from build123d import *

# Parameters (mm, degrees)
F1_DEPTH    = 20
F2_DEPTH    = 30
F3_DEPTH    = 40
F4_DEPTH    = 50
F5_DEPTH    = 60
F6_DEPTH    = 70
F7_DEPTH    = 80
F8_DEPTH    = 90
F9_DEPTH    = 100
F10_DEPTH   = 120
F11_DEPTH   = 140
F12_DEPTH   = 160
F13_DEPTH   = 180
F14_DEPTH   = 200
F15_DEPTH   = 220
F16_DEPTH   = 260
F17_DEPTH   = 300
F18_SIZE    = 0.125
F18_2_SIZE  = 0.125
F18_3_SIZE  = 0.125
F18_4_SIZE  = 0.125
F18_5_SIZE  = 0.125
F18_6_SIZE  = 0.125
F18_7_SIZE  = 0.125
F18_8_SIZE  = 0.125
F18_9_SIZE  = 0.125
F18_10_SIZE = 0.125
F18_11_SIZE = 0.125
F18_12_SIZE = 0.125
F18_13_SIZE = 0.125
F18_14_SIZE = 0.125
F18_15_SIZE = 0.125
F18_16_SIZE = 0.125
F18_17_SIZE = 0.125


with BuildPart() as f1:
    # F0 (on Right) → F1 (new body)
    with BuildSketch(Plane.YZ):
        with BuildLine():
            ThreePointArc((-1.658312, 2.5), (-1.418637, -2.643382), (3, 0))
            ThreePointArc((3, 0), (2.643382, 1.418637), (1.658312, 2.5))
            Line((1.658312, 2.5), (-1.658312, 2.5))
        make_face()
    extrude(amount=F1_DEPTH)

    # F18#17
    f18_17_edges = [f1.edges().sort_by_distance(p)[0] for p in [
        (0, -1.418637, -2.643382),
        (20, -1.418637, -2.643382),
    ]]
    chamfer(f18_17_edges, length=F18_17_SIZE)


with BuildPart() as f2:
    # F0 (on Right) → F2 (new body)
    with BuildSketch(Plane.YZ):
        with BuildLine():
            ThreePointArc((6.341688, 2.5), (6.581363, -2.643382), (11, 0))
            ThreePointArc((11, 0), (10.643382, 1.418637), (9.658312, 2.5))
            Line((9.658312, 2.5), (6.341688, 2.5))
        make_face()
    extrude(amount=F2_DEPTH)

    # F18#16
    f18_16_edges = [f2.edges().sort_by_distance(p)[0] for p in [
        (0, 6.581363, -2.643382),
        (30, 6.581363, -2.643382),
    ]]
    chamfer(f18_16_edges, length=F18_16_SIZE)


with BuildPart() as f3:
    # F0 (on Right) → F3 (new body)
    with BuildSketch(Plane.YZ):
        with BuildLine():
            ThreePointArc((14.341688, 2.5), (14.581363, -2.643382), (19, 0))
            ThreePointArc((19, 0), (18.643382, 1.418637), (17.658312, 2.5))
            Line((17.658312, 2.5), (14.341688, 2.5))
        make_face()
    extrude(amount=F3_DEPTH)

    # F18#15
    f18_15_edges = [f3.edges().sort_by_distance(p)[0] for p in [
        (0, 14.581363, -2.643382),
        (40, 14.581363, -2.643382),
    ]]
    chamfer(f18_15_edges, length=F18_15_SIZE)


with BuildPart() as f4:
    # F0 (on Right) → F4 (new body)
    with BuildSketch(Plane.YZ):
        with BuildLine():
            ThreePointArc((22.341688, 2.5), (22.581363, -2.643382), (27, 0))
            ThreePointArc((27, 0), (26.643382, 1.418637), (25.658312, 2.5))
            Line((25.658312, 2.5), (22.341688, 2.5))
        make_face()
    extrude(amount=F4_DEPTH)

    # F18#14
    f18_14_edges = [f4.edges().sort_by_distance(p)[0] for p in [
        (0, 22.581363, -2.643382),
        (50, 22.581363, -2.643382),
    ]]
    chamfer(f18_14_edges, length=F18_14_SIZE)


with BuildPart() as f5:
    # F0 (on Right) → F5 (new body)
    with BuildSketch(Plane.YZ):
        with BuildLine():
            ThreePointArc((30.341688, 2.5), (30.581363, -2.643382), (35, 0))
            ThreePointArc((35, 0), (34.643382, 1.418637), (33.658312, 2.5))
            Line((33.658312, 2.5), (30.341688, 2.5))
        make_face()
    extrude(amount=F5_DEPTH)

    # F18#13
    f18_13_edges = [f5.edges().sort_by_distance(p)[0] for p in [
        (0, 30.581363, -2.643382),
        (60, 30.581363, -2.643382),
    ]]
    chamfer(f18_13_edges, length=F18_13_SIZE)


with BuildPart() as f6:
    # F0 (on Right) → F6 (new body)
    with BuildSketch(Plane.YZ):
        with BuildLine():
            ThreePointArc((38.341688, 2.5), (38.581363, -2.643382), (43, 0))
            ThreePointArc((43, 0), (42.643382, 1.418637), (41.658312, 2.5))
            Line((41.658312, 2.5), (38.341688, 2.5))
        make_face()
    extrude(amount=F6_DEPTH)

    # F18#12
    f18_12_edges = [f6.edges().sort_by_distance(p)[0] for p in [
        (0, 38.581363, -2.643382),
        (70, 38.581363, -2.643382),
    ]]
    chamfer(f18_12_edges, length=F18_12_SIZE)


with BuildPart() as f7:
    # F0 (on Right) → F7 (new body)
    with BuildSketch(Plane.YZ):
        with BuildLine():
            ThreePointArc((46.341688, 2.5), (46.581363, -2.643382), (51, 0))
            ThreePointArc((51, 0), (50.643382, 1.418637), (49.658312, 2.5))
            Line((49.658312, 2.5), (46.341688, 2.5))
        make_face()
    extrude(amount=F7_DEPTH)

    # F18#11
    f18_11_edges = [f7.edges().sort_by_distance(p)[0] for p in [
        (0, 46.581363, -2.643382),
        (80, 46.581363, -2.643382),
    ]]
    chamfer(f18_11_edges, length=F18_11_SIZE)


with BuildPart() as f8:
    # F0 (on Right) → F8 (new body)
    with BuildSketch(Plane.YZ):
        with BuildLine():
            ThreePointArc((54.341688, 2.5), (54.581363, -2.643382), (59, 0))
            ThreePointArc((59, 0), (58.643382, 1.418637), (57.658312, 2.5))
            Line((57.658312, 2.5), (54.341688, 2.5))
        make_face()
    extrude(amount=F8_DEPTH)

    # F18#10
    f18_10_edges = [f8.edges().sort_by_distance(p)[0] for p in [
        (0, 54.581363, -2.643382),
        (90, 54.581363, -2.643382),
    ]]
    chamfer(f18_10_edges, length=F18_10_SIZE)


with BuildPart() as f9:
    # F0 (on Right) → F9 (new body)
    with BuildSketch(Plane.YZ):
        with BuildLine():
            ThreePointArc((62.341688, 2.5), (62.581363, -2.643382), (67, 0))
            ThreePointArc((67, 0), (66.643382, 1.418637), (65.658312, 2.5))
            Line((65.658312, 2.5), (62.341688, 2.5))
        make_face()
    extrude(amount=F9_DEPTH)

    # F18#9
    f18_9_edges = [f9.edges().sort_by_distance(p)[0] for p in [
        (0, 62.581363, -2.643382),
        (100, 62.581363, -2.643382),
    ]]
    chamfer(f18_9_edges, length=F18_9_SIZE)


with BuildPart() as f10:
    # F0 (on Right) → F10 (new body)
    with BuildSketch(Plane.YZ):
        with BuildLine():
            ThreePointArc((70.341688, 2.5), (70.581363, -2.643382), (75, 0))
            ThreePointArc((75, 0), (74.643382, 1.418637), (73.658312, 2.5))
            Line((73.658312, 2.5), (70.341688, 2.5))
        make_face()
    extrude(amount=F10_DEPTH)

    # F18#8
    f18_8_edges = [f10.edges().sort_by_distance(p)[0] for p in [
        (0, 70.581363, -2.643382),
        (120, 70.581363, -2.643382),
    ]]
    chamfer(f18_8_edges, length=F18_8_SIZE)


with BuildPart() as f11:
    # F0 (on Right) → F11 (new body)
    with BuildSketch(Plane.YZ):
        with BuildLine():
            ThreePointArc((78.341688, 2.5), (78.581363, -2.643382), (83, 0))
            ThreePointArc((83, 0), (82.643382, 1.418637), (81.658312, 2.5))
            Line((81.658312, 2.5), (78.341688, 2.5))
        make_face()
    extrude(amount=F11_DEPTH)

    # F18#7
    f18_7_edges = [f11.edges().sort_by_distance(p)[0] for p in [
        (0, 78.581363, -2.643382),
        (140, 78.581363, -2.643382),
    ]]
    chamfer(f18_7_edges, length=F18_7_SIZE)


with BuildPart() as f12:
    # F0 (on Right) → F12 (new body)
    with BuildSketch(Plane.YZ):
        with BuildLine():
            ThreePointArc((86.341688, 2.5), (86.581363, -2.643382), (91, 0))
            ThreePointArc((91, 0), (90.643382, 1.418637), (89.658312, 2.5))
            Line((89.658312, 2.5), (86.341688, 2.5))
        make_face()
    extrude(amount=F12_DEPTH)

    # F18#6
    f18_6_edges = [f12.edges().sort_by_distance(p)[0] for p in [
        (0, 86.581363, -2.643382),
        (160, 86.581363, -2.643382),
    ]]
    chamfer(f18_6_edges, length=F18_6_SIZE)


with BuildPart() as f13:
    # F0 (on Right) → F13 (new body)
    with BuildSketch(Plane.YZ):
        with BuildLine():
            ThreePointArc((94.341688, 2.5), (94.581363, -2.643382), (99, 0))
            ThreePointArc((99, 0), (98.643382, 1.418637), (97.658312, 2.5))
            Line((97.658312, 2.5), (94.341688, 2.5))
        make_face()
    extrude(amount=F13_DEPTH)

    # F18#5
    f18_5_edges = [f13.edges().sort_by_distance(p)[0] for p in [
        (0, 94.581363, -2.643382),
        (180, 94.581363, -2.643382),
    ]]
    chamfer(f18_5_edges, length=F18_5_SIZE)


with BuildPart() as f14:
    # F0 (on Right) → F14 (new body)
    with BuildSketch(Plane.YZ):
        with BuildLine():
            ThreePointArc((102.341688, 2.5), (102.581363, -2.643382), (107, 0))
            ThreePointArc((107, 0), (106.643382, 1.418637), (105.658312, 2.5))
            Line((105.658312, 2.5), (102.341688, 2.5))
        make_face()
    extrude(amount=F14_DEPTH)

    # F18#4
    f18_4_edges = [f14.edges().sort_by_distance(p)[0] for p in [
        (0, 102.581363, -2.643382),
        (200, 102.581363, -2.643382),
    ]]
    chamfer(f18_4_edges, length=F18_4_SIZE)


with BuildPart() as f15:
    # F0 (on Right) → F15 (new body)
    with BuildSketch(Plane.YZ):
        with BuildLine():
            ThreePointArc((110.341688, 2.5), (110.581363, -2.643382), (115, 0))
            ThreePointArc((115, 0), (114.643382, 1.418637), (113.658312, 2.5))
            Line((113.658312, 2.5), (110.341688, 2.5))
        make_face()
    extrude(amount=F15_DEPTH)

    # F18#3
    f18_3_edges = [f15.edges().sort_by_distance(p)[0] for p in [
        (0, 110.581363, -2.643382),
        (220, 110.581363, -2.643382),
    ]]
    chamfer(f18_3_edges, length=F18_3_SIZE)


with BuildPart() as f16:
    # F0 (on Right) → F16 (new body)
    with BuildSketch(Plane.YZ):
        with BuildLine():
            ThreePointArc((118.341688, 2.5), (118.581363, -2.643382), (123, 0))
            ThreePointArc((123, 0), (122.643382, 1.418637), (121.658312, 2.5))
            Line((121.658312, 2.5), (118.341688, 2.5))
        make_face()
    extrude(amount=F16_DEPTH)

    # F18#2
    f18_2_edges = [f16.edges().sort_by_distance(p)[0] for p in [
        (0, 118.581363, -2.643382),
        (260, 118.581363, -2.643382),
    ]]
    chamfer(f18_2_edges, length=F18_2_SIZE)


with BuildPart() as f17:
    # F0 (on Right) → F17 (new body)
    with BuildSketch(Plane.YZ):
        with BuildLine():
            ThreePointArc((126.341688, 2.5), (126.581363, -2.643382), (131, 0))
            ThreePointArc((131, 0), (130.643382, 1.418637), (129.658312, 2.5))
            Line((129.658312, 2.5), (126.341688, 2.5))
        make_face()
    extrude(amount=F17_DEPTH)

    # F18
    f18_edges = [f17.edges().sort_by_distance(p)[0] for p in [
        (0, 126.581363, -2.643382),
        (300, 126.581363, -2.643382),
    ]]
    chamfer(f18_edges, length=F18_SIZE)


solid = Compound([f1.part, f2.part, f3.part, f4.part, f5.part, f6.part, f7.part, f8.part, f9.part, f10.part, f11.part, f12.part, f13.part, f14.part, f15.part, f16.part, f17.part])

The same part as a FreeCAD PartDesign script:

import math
import FreeCAD as App
import Part
import Sketcher


def edges_at(feature, points):
    """Names of the edges that pass closest to the given points."""
    edges = feature.Shape.Edges
    near = lambda p: min(range(len(edges)), key=lambda i: edges[i].distToShape(Part.Vertex(*p))[0])
    return sorted({f"Edge{near(p) + 1}" for p in points})

doc = App.newDocument("Part")
body = doc.addObject("PartDesign::Body", "Body")

# Sketch on YZ plane
sketch1 = body.newObject("Sketcher::SketchObject", "Sketch")
sketch1.AttachmentSupport = (doc.getObject("YZ_Plane"), [""])
sketch1.MapMode = "FlatFace"
sketch1.addGeometry([
    Part.ArcOfCircle(Part.Circle(App.Vector(0, 0, 0), App.Vector(0, 0, 1), 3), math.radians(124), math.radians(360)),
    Part.ArcOfCircle(Part.Circle(App.Vector(0, 0, 0), App.Vector(0, 0, 1), 3), math.radians(0), math.radians(56)),
    Part.LineSegment(App.Vector(1.7, 2.5, 0), App.Vector(-1.7, 2.5, 0)),
], False)
sketch1.addConstraint([
    Sketcher.Constraint("Tangent", 0, 2, 1, 1),
    Sketcher.Constraint("Coincident", 1, 2, 2, 1),
    Sketcher.Constraint("Coincident", 2, 2, 0, 1),
    Sketcher.Constraint("Horizontal", 2),
    Sketcher.Constraint("Coincident", 0, 3, -1, 1),
    Sketcher.Constraint("Equal", 0, 1),
    Sketcher.Constraint("PointOnObject", 0, 2, -1),
    Sketcher.Constraint("Radius", 0, 3.0),
    Sketcher.Constraint("DistanceY", -1, 1, 1, 2, 2.5),
])
pad1 = body.newObject("PartDesign::Pad", "Pad")
pad1.Profile = sketch1
pad1.Length = 20
doc.recompute()

chamfer = body.newObject("PartDesign::Chamfer", "Chamfer")
chamfer.Base = (pad1, edges_at(pad1, [(0, -1.419, -2.643), (20, -1.419, -2.643)]))
chamfer.Size = 0.125
body2 = doc.addObject("PartDesign::Body", "Body001")

# Sketch on YZ plane
sketch2 = body2.newObject("Sketcher::SketchObject", "Sketch001")
sketch2.AttachmentSupport = (doc.getObject("YZ_Plane001"), [""])
sketch2.MapMode = "FlatFace"
sketch2.addGeometry([
    Part.ArcOfCircle(Part.Circle(App.Vector(8, 0, 0), App.Vector(0, 0, 1), 3), math.radians(124), math.radians(360)),
    Part.ArcOfCircle(Part.Circle(App.Vector(8, 0, 0), App.Vector(0, 0, 1), 3), math.radians(0), math.radians(56)),
    Part.LineSegment(App.Vector(9.7, 2.5, 0), App.Vector(6.3, 2.5, 0)),
], False)
sketch2.addConstraint([
    Sketcher.Constraint("Tangent", 0, 2, 1, 1),
    Sketcher.Constraint("Coincident", 1, 2, 2, 1),
    Sketcher.Constraint("Coincident", 2, 2, 0, 1),
    Sketcher.Constraint("Horizontal", 2),
    Sketcher.Constraint("Equal", 0, 1),
    Sketcher.Constraint("PointOnObject", 0, 3, -1),
    Sketcher.Constraint("PointOnObject", 0, 2, -1),
    Sketcher.Constraint("Radius", 0, 3.0),
    Sketcher.Constraint("DistanceX", -1, 1, 0, 3, 8.0),
    Sketcher.Constraint("DistanceY", -1, 1, 1, 2, 2.5),
])
pad2 = body2.newObject("PartDesign::Pad", "Pad001")
pad2.Profile = sketch2
pad2.Length = 30
doc.recompute()

chamfer2 = body2.newObject("PartDesign::Chamfer", "Chamfer001")
chamfer2.Base = (pad2, edges_at(pad2, [(0, 6.581, -2.643), (30, 6.581, -2.643)]))
chamfer2.Size = 0.125
body3 = doc.addObject("PartDesign::Body", "Body002")

# Sketch on YZ plane
sketch3 = body3.newObject("Sketcher::SketchObject", "Sketch002")
sketch3.AttachmentSupport = (doc.getObject("YZ_Plane002"), [""])
sketch3.MapMode = "FlatFace"
sketch3.addGeometry([
    Part.ArcOfCircle(Part.Circle(App.Vector(16, 0, 0), App.Vector(0, 0, 1), 3), math.radians(124), math.radians(360)),
    Part.ArcOfCircle(Part.Circle(App.Vector(16, 0, 0), App.Vector(0, 0, 1), 3), math.radians(0), math.radians(56)),
    Part.LineSegment(App.Vector(17.7, 2.5, 0), App.Vector(14.3, 2.5, 0)),
], False)
sketch3.addConstraint([
    Sketcher.Constraint("Tangent", 0, 2, 1, 1),
    Sketcher.Constraint("Coincident", 1, 2, 2, 1),
    Sketcher.Constraint("Coincident", 2, 2, 0, 1),
    Sketcher.Constraint("Horizontal", 2),
    Sketcher.Constraint("Equal", 0, 1),
    Sketcher.Constraint("PointOnObject", 0, 3, -1),
    Sketcher.Constraint("PointOnObject", 0, 2, -1),
    Sketcher.Constraint("Radius", 0, 3.0),
    Sketcher.Constraint("DistanceX", -1, 1, 0, 3, 16.0),
    Sketcher.Constraint("DistanceY", -1, 1, 1, 2, 2.5),
])
pad3 = body3.newObject("PartDesign::Pad", "Pad002")
pad3.Profile = sketch3
pad3.Length = 40
doc.recompute()

chamfer3 = body3.newObject("PartDesign::Chamfer", "Chamfer002")
chamfer3.Base = (pad3, edges_at(pad3, [(0, 14.581, -2.643), (40, 14.581, -2.643)]))
chamfer3.Size = 0.125
body4 = doc.addObject("PartDesign::Body", "Body003")

# Sketch on YZ plane
sketch4 = body4.newObject("Sketcher::SketchObject", "Sketch003")
sketch4.AttachmentSupport = (doc.getObject("YZ_Plane003"), [""])
sketch4.MapMode = "FlatFace"
sketch4.addGeometry([
    Part.ArcOfCircle(Part.Circle(App.Vector(24, 0, 0), App.Vector(0, 0, 1), 3), math.radians(124), math.radians(360)),
    Part.ArcOfCircle(Part.Circle(App.Vector(24, 0, 0), App.Vector(0, 0, 1), 3), math.radians(0), math.radians(56)),
    Part.LineSegment(App.Vector(25.7, 2.5, 0), App.Vector(22.3, 2.5, 0)),
], False)
sketch4.addConstraint([
    Sketcher.Constraint("Tangent", 0, 2, 1, 1),
    Sketcher.Constraint("Coincident", 1, 2, 2, 1),
    Sketcher.Constraint("Coincident", 2, 2, 0, 1),
    Sketcher.Constraint("Horizontal", 2),
    Sketcher.Constraint("Equal", 0, 1),
    Sketcher.Constraint("PointOnObject", 0, 3, -1),
    Sketcher.Constraint("PointOnObject", 0, 2, -1),
    Sketcher.Constraint("Radius", 0, 3.0),
    Sketcher.Constraint("DistanceX", -1, 1, 0, 3, 24.0),
    Sketcher.Constraint("DistanceY", -1, 1, 1, 2, 2.5),
])
pad4 = body4.newObject("PartDesign::Pad", "Pad003")
pad4.Profile = sketch4
pad4.Length = 50
doc.recompute()

chamfer4 = body4.newObject("PartDesign::Chamfer", "Chamfer003")
chamfer4.Base = (pad4, edges_at(pad4, [(0, 22.581, -2.643), (50, 22.581, -2.643)]))
chamfer4.Size = 0.125
body5 = doc.addObject("PartDesign::Body", "Body004")

# Sketch on YZ plane
sketch5 = body5.newObject("Sketcher::SketchObject", "Sketch004")
sketch5.AttachmentSupport = (doc.getObject("YZ_Plane004"), [""])
sketch5.MapMode = "FlatFace"
sketch5.addGeometry([
    Part.ArcOfCircle(Part.Circle(App.Vector(32, 0, 0), App.Vector(0, 0, 1), 3), math.radians(124), math.radians(360)),
    Part.ArcOfCircle(Part.Circle(App.Vector(32, 0, 0), App.Vector(0, 0, 1), 3), math.radians(0), math.radians(56)),
    Part.LineSegment(App.Vector(33.7, 2.5, 0), App.Vector(30.3, 2.5, 0)),
], False)
sketch5.addConstraint([
    Sketcher.Constraint("Tangent", 0, 2, 1, 1),
    Sketcher.Constraint("Coincident", 1, 2, 2, 1),
    Sketcher.Constraint("Coincident", 2, 2, 0, 1),
    Sketcher.Constraint("Horizontal", 2),
    Sketcher.Constraint("Equal", 0, 1),
    Sketcher.Constraint("PointOnObject", 0, 3, -1),
    Sketcher.Constraint("PointOnObject", 0, 2, -1),
    Sketcher.Constraint("Radius", 0, 3.0),
    Sketcher.Constraint("DistanceX", -1, 1, 0, 3, 32.0),
    Sketcher.Constraint("DistanceY", -1, 1, 1, 2, 2.5),
])
pad5 = body5.newObject("PartDesign::Pad", "Pad004")
pad5.Profile = sketch5
pad5.Length = 60
doc.recompute()

chamfer5 = body5.newObject("PartDesign::Chamfer", "Chamfer004")
chamfer5.Base = (pad5, edges_at(pad5, [(0, 30.581, -2.643), (60, 30.581, -2.643)]))
chamfer5.Size = 0.125
body6 = doc.addObject("PartDesign::Body", "Body005")

# Sketch on YZ plane
sketch6 = body6.newObject("Sketcher::SketchObject", "Sketch005")
sketch6.AttachmentSupport = (doc.getObject("YZ_Plane005"), [""])
sketch6.MapMode = "FlatFace"
sketch6.addGeometry([
    Part.ArcOfCircle(Part.Circle(App.Vector(40, 0, 0), App.Vector(0, 0, 1), 3), math.radians(124), math.radians(360)),
    Part.ArcOfCircle(Part.Circle(App.Vector(40, 0, 0), App.Vector(0, 0, 1), 3), math.radians(0), math.radians(56)),
    Part.LineSegment(App.Vector(41.7, 2.5, 0), App.Vector(38.3, 2.5, 0)),
], False)
sketch6.addConstraint([
    Sketcher.Constraint("Tangent", 0, 2, 1, 1),
    Sketcher.Constraint("Coincident", 1, 2, 2, 1),
    Sketcher.Constraint("Coincident", 2, 2, 0, 1),
    Sketcher.Constraint("Horizontal", 2),
    Sketcher.Constraint("Equal", 0, 1),
    Sketcher.Constraint("PointOnObject", 0, 3, -1),
    Sketcher.Constraint("PointOnObject", 0, 2, -1),
    Sketcher.Constraint("Radius", 0, 3.0),
    Sketcher.Constraint("DistanceX", -1, 1, 0, 3, 40.0),
    Sketcher.Constraint("DistanceY", -1, 1, 1, 2, 2.5),
])
pad6 = body6.newObject("PartDesign::Pad", "Pad005")
pad6.Profile = sketch6
pad6.Length = 70
doc.recompute()

chamfer6 = body6.newObject("PartDesign::Chamfer", "Chamfer005")
chamfer6.Base = (pad6, edges_at(pad6, [(0, 38.581, -2.643), (70, 38.581, -2.643)]))
chamfer6.Size = 0.125
body7 = doc.addObject("PartDesign::Body", "Body006")

# Sketch on YZ plane
sketch7 = body7.newObject("Sketcher::SketchObject", "Sketch006")
sketch7.AttachmentSupport = (doc.getObject("YZ_Plane006"), [""])
sketch7.MapMode = "FlatFace"
sketch7.addGeometry([
    Part.ArcOfCircle(Part.Circle(App.Vector(48, 0, 0), App.Vector(0, 0, 1), 3), math.radians(124), math.radians(360)),
    Part.ArcOfCircle(Part.Circle(App.Vector(48, 0, 0), App.Vector(0, 0, 1), 3), math.radians(0), math.radians(56)),
    Part.LineSegment(App.Vector(49.7, 2.5, 0), App.Vector(46.3, 2.5, 0)),
], False)
sketch7.addConstraint([
    Sketcher.Constraint("Tangent", 0, 2, 1, 1),
    Sketcher.Constraint("Coincident", 1, 2, 2, 1),
    Sketcher.Constraint("Coincident", 2, 2, 0, 1),
    Sketcher.Constraint("Horizontal", 2),
    Sketcher.Constraint("Equal", 0, 1),
    Sketcher.Constraint("PointOnObject", 0, 3, -1),
    Sketcher.Constraint("PointOnObject", 0, 2, -1),
    Sketcher.Constraint("Radius", 0, 3.0),
    Sketcher.Constraint("DistanceX", -1, 1, 0, 3, 48.0),
    Sketcher.Constraint("DistanceY", -1, 1, 1, 2, 2.5),
])
pad7 = body7.newObject("PartDesign::Pad", "Pad006")
pad7.Profile = sketch7
pad7.Length = 80
doc.recompute()

chamfer7 = body7.newObject("PartDesign::Chamfer", "Chamfer006")
chamfer7.Base = (pad7, edges_at(pad7, [(0, 46.581, -2.643), (80, 46.581, -2.643)]))
chamfer7.Size = 0.125
body8 = doc.addObject("PartDesign::Body", "Body007")

# Sketch on YZ plane
sketch8 = body8.newObject("Sketcher::SketchObject", "Sketch007")
sketch8.AttachmentSupport = (doc.getObject("YZ_Plane007"), [""])
sketch8.MapMode = "FlatFace"
sketch8.addGeometry([
    Part.ArcOfCircle(Part.Circle(App.Vector(56, 0, 0), App.Vector(0, 0, 1), 3), math.radians(124), math.radians(360)),
    Part.ArcOfCircle(Part.Circle(App.Vector(56, 0, 0), App.Vector(0, 0, 1), 3), math.radians(0), math.radians(56)),
    Part.LineSegment(App.Vector(57.7, 2.5, 0), App.Vector(54.3, 2.5, 0)),
], False)
sketch8.addConstraint([
    Sketcher.Constraint("Tangent", 0, 2, 1, 1),
    Sketcher.Constraint("Coincident", 1, 2, 2, 1),
    Sketcher.Constraint("Coincident", 2, 2, 0, 1),
    Sketcher.Constraint("Horizontal", 2),
    Sketcher.Constraint("Equal", 0, 1),
    Sketcher.Constraint("PointOnObject", 0, 3, -1),
    Sketcher.Constraint("PointOnObject", 0, 2, -1),
    Sketcher.Constraint("Radius", 0, 3.0),
    Sketcher.Constraint("DistanceX", -1, 1, 0, 3, 56.0),
    Sketcher.Constraint("DistanceY", -1, 1, 1, 2, 2.5),
])
pad8 = body8.newObject("PartDesign::Pad", "Pad007")
pad8.Profile = sketch8
pad8.Length = 90
doc.recompute()

chamfer8 = body8.newObject("PartDesign::Chamfer", "Chamfer007")
chamfer8.Base = (pad8, edges_at(pad8, [(0, 54.581, -2.643), (90, 54.581, -2.643)]))
chamfer8.Size = 0.125
body9 = doc.addObject("PartDesign::Body", "Body008")

# Sketch on YZ plane
sketch9 = body9.newObject("Sketcher::SketchObject", "Sketch008")
sketch9.AttachmentSupport = (doc.getObject("YZ_Plane008"), [""])
sketch9.MapMode = "FlatFace"
sketch9.addGeometry([
    Part.ArcOfCircle(Part.Circle(App.Vector(64, 0, 0), App.Vector(0, 0, 1), 3), math.radians(124), math.radians(360)),
    Part.ArcOfCircle(Part.Circle(App.Vector(64, 0, 0), App.Vector(0, 0, 1), 3), math.radians(0), math.radians(56)),
    Part.LineSegment(App.Vector(65.7, 2.5, 0), App.Vector(62.3, 2.5, 0)),
], False)
sketch9.addConstraint([
    Sketcher.Constraint("Tangent", 0, 2, 1, 1),
    Sketcher.Constraint("Coincident", 1, 2, 2, 1),
    Sketcher.Constraint("Coincident", 2, 2, 0, 1),
    Sketcher.Constraint("Horizontal", 2),
    Sketcher.Constraint("Equal", 0, 1),
    Sketcher.Constraint("PointOnObject", 0, 3, -1),
    Sketcher.Constraint("PointOnObject", 0, 2, -1),
    Sketcher.Constraint("Radius", 0, 3.0),
    Sketcher.Constraint("DistanceX", -1, 1, 0, 3, 64.0),
    Sketcher.Constraint("DistanceY", -1, 1, 1, 2, 2.5),
])
pad9 = body9.newObject("PartDesign::Pad", "Pad008")
pad9.Profile = sketch9
pad9.Length = 100
doc.recompute()

chamfer9 = body9.newObject("PartDesign::Chamfer", "Chamfer008")
chamfer9.Base = (pad9, edges_at(pad9, [(0, 62.581, -2.643), (100, 62.581, -2.643)]))
chamfer9.Size = 0.125
body10 = doc.addObject("PartDesign::Body", "Body009")

# Sketch on YZ plane
sketch10 = body10.newObject("Sketcher::SketchObject", "Sketch009")
sketch10.AttachmentSupport = (doc.getObject("YZ_Plane009"), [""])
sketch10.MapMode = "FlatFace"
sketch10.addGeometry([
    Part.ArcOfCircle(Part.Circle(App.Vector(72, 0, 0), App.Vector(0, 0, 1), 3), math.radians(124), math.radians(360)),
    Part.ArcOfCircle(Part.Circle(App.Vector(72, 0, 0), App.Vector(0, 0, 1), 3), math.radians(0), math.radians(56)),
    Part.LineSegment(App.Vector(73.7, 2.5, 0), App.Vector(70.3, 2.5, 0)),
], False)
sketch10.addConstraint([
    Sketcher.Constraint("Tangent", 0, 2, 1, 1),
    Sketcher.Constraint("Coincident", 1, 2, 2, 1),
    Sketcher.Constraint("Coincident", 2, 2, 0, 1),
    Sketcher.Constraint("Horizontal", 2),
    Sketcher.Constraint("Equal", 0, 1),
    Sketcher.Constraint("PointOnObject", 0, 3, -1),
    Sketcher.Constraint("PointOnObject", 0, 2, -1),
    Sketcher.Constraint("Radius", 0, 3.0),
    Sketcher.Constraint("DistanceX", -1, 1, 0, 3, 72.0),
    Sketcher.Constraint("DistanceY", -1, 1, 1, 2, 2.5),
])
pad10 = body10.newObject("PartDesign::Pad", "Pad009")
pad10.Profile = sketch10
pad10.Length = 120
doc.recompute()

chamfer10 = body10.newObject("PartDesign::Chamfer", "Chamfer009")
chamfer10.Base = (pad10, edges_at(pad10, [(0, 70.581, -2.643), (120, 70.581, -2.643)]))
chamfer10.Size = 0.125
body11 = doc.addObject("PartDesign::Body", "Body010")

# Sketch on YZ plane
sketch11 = body11.newObject("Sketcher::SketchObject", "Sketch010")
sketch11.AttachmentSupport = (doc.getObject("YZ_Plane010"), [""])
sketch11.MapMode = "FlatFace"
sketch11.addGeometry([
    Part.ArcOfCircle(Part.Circle(App.Vector(80, 0, 0), App.Vector(0, 0, 1), 3), math.radians(124), math.radians(360)),
    Part.ArcOfCircle(Part.Circle(App.Vector(80, 0, 0), App.Vector(0, 0, 1), 3), math.radians(0), math.radians(56)),
    Part.LineSegment(App.Vector(81.7, 2.5, 0), App.Vector(78.3, 2.5, 0)),
], False)
sketch11.addConstraint([
    Sketcher.Constraint("Tangent", 0, 2, 1, 1),
    Sketcher.Constraint("Coincident", 1, 2, 2, 1),
    Sketcher.Constraint("Coincident", 2, 2, 0, 1),
    Sketcher.Constraint("Horizontal", 2),
    Sketcher.Constraint("Equal", 0, 1),
    Sketcher.Constraint("PointOnObject", 0, 3, -1),
    Sketcher.Constraint("PointOnObject", 0, 2, -1),
    Sketcher.Constraint("Radius", 0, 3.0),
    Sketcher.Constraint("DistanceX", -1, 1, 0, 3, 80.0),
    Sketcher.Constraint("DistanceY", -1, 1, 1, 2, 2.5),
])
pad11 = body11.newObject("PartDesign::Pad", "Pad010")
pad11.Profile = sketch11
pad11.Length = 140
doc.recompute()

chamfer11 = body11.newObject("PartDesign::Chamfer", "Chamfer010")
chamfer11.Base = (pad11, edges_at(pad11, [(0, 78.581, -2.643), (140, 78.581, -2.643)]))
chamfer11.Size = 0.125
body12 = doc.addObject("PartDesign::Body", "Body011")

# Sketch on YZ plane
sketch12 = body12.newObject("Sketcher::SketchObject", "Sketch011")
sketch12.AttachmentSupport = (doc.getObject("YZ_Plane011"), [""])
sketch12.MapMode = "FlatFace"
sketch12.addGeometry([
    Part.ArcOfCircle(Part.Circle(App.Vector(88, 0, 0), App.Vector(0, 0, 1), 3), math.radians(124), math.radians(360)),
    Part.ArcOfCircle(Part.Circle(App.Vector(88, 0, 0), App.Vector(0, 0, 1), 3), math.radians(0), math.radians(56)),
    Part.LineSegment(App.Vector(89.7, 2.5, 0), App.Vector(86.3, 2.5, 0)),
], False)
sketch12.addConstraint([
    Sketcher.Constraint("Tangent", 0, 2, 1, 1),
    Sketcher.Constraint("Coincident", 1, 2, 2, 1),
    Sketcher.Constraint("Coincident", 2, 2, 0, 1),
    Sketcher.Constraint("Horizontal", 2),
    Sketcher.Constraint("Equal", 0, 1),
    Sketcher.Constraint("PointOnObject", 0, 3, -1),
    Sketcher.Constraint("PointOnObject", 0, 2, -1),
    Sketcher.Constraint("Radius", 0, 3.0),
    Sketcher.Constraint("DistanceX", -1, 1, 0, 3, 88.0),
    Sketcher.Constraint("DistanceY", -1, 1, 1, 2, 2.5),
])
pad12 = body12.newObject("PartDesign::Pad", "Pad011")
pad12.Profile = sketch12
pad12.Length = 160
doc.recompute()

chamfer12 = body12.newObject("PartDesign::Chamfer", "Chamfer011")
chamfer12.Base = (pad12, edges_at(pad12, [(0, 86.581, -2.643), (160, 86.581, -2.643)]))
chamfer12.Size = 0.125
body13 = doc.addObject("PartDesign::Body", "Body012")

# Sketch on YZ plane
sketch13 = body13.newObject("Sketcher::SketchObject", "Sketch012")
sketch13.AttachmentSupport = (doc.getObject("YZ_Plane012"), [""])
sketch13.MapMode = "FlatFace"
sketch13.addGeometry([
    Part.ArcOfCircle(Part.Circle(App.Vector(96, 0, 0), App.Vector(0, 0, 1), 3), math.radians(124), math.radians(360)),
    Part.ArcOfCircle(Part.Circle(App.Vector(96, 0, 0), App.Vector(0, 0, 1), 3), math.radians(0), math.radians(56)),
    Part.LineSegment(App.Vector(97.7, 2.5, 0), App.Vector(94.3, 2.5, 0)),
], False)
sketch13.addConstraint([
    Sketcher.Constraint("Tangent", 0, 2, 1, 1),
    Sketcher.Constraint("Coincident", 1, 2, 2, 1),
    Sketcher.Constraint("Coincident", 2, 2, 0, 1),
    Sketcher.Constraint("Horizontal", 2),
    Sketcher.Constraint("Equal", 0, 1),
    Sketcher.Constraint("PointOnObject", 0, 3, -1),
    Sketcher.Constraint("PointOnObject", 0, 2, -1),
    Sketcher.Constraint("Radius", 0, 3.0),
    Sketcher.Constraint("DistanceX", -1, 1, 0, 3, 96.0),
    Sketcher.Constraint("DistanceY", -1, 1, 1, 2, 2.5),
])
pad13 = body13.newObject("PartDesign::Pad", "Pad012")
pad13.Profile = sketch13
pad13.Length = 180
doc.recompute()

chamfer13 = body13.newObject("PartDesign::Chamfer", "Chamfer012")
chamfer13.Base = (pad13, edges_at(pad13, [(0, 94.581, -2.643), (180, 94.581, -2.643)]))
chamfer13.Size = 0.125
body14 = doc.addObject("PartDesign::Body", "Body013")

# Sketch on YZ plane
sketch14 = body14.newObject("Sketcher::SketchObject", "Sketch013")
sketch14.AttachmentSupport = (doc.getObject("YZ_Plane013"), [""])
sketch14.MapMode = "FlatFace"
sketch14.addGeometry([
    Part.ArcOfCircle(Part.Circle(App.Vector(104, 0, 0), App.Vector(0, 0, 1), 3), math.radians(124), math.radians(360)),
    Part.ArcOfCircle(Part.Circle(App.Vector(104, 0, 0), App.Vector(0, 0, 1), 3), math.radians(0), math.radians(56)),
    Part.LineSegment(App.Vector(105.7, 2.5, 0), App.Vector(102.3, 2.5, 0)),
], False)
sketch14.addConstraint([
    Sketcher.Constraint("Tangent", 0, 2, 1, 1),
    Sketcher.Constraint("Coincident", 1, 2, 2, 1),
    Sketcher.Constraint("Coincident", 2, 2, 0, 1),
    Sketcher.Constraint("Horizontal", 2),
    Sketcher.Constraint("Equal", 0, 1),
    Sketcher.Constraint("PointOnObject", 0, 3, -1),
    Sketcher.Constraint("PointOnObject", 0, 2, -1),
    Sketcher.Constraint("Radius", 0, 3.0),
    Sketcher.Constraint("DistanceX", -1, 1, 0, 3, 104.0),
    Sketcher.Constraint("DistanceY", -1, 1, 1, 2, 2.5),
])
pad14 = body14.newObject("PartDesign::Pad", "Pad013")
pad14.Profile = sketch14
pad14.Length = 200
doc.recompute()

chamfer14 = body14.newObject("PartDesign::Chamfer", "Chamfer013")
chamfer14.Base = (pad14, edges_at(pad14, [(0, 102.581, -2.643), (200, 102.581, -2.643)]))
chamfer14.Size = 0.125
body15 = doc.addObject("PartDesign::Body", "Body014")

# Sketch on YZ plane
sketch15 = body15.newObject("Sketcher::SketchObject", "Sketch014")
sketch15.AttachmentSupport = (doc.getObject("YZ_Plane014"), [""])
sketch15.MapMode = "FlatFace"
sketch15.addGeometry([
    Part.ArcOfCircle(Part.Circle(App.Vector(112, 0, 0), App.Vector(0, 0, 1), 3), math.radians(124), math.radians(360)),
    Part.ArcOfCircle(Part.Circle(App.Vector(112, 0, 0), App.Vector(0, 0, 1), 3), math.radians(0), math.radians(56)),
    Part.LineSegment(App.Vector(113.7, 2.5, 0), App.Vector(110.3, 2.5, 0)),
], False)
sketch15.addConstraint([
    Sketcher.Constraint("Tangent", 0, 2, 1, 1),
    Sketcher.Constraint("Coincident", 1, 2, 2, 1),
    Sketcher.Constraint("Coincident", 2, 2, 0, 1),
    Sketcher.Constraint("Horizontal", 2),
    Sketcher.Constraint("Equal", 0, 1),
    Sketcher.Constraint("PointOnObject", 0, 3, -1),
    Sketcher.Constraint("PointOnObject", 0, 2, -1),
    Sketcher.Constraint("Radius", 0, 3.0),
    Sketcher.Constraint("DistanceX", -1, 1, 0, 3, 112.0),
    Sketcher.Constraint("DistanceY", -1, 1, 1, 2, 2.5),
])
pad15 = body15.newObject("PartDesign::Pad", "Pad014")
pad15.Profile = sketch15
pad15.Length = 220
doc.recompute()

chamfer15 = body15.newObject("PartDesign::Chamfer", "Chamfer014")
chamfer15.Base = (pad15, edges_at(pad15, [(0, 110.581, -2.643), (220, 110.581, -2.643)]))
chamfer15.Size = 0.125
body16 = doc.addObject("PartDesign::Body", "Body015")

# Sketch on YZ plane
sketch16 = body16.newObject("Sketcher::SketchObject", "Sketch015")
sketch16.AttachmentSupport = (doc.getObject("YZ_Plane015"), [""])
sketch16.MapMode = "FlatFace"
sketch16.addGeometry([
    Part.ArcOfCircle(Part.Circle(App.Vector(120, 0, 0), App.Vector(0, 0, 1), 3), math.radians(124), math.radians(360)),
    Part.ArcOfCircle(Part.Circle(App.Vector(120, 0, 0), App.Vector(0, 0, 1), 3), math.radians(0), math.radians(56)),
    Part.LineSegment(App.Vector(121.7, 2.5, 0), App.Vector(118.3, 2.5, 0)),
], False)
sketch16.addConstraint([
    Sketcher.Constraint("Tangent", 0, 2, 1, 1),
    Sketcher.Constraint("Coincident", 1, 2, 2, 1),
    Sketcher.Constraint("Coincident", 2, 2, 0, 1),
    Sketcher.Constraint("Horizontal", 2),
    Sketcher.Constraint("Equal", 0, 1),
    Sketcher.Constraint("PointOnObject", 0, 3, -1),
    Sketcher.Constraint("PointOnObject", 0, 2, -1),
    Sketcher.Constraint("Radius", 0, 3.0),
    Sketcher.Constraint("DistanceX", -1, 1, 0, 3, 120.0),
    Sketcher.Constraint("DistanceY", -1, 1, 1, 2, 2.5),
])
pad16 = body16.newObject("PartDesign::Pad", "Pad015")
pad16.Profile = sketch16
pad16.Length = 260
doc.recompute()

chamfer16 = body16.newObject("PartDesign::Chamfer", "Chamfer015")
chamfer16.Base = (pad16, edges_at(pad16, [(0, 118.581, -2.643), (260, 118.581, -2.643)]))
chamfer16.Size = 0.125
body17 = doc.addObject("PartDesign::Body", "Body016")

# Sketch on YZ plane
sketch17 = body17.newObject("Sketcher::SketchObject", "Sketch016")
sketch17.AttachmentSupport = (doc.getObject("YZ_Plane016"), [""])
sketch17.MapMode = "FlatFace"
sketch17.addGeometry([
    Part.ArcOfCircle(Part.Circle(App.Vector(128, 0, 0), App.Vector(0, 0, 1), 3), math.radians(124), math.radians(360)),
    Part.ArcOfCircle(Part.Circle(App.Vector(128, 0, 0), App.Vector(0, 0, 1), 3), math.radians(0), math.radians(56)),
    Part.LineSegment(App.Vector(129.7, 2.5, 0), App.Vector(126.3, 2.5, 0)),
], False)
sketch17.addConstraint([
    Sketcher.Constraint("Tangent", 0, 2, 1, 1),
    Sketcher.Constraint("Coincident", 1, 2, 2, 1),
    Sketcher.Constraint("Coincident", 2, 2, 0, 1),
    Sketcher.Constraint("Horizontal", 2),
    Sketcher.Constraint("Equal", 0, 1),
    Sketcher.Constraint("PointOnObject", 0, 3, -1),
    Sketcher.Constraint("PointOnObject", 0, 2, -1),
    Sketcher.Constraint("Radius", 0, 3.0),
    Sketcher.Constraint("DistanceX", -1, 1, 0, 3, 128.0),
    Sketcher.Constraint("DistanceY", -1, 1, 1, 2, 2.5),
])
pad17 = body17.newObject("PartDesign::Pad", "Pad016")
pad17.Profile = sketch17
pad17.Length = 300
doc.recompute()

chamfer17 = body17.newObject("PartDesign::Chamfer", "Chamfer016")
chamfer17.Base = (pad17, edges_at(pad17, [(0, 126.581, -2.643), (300, 126.581, -2.643)]))
chamfer17.Size = 0.125

doc.recompute()
